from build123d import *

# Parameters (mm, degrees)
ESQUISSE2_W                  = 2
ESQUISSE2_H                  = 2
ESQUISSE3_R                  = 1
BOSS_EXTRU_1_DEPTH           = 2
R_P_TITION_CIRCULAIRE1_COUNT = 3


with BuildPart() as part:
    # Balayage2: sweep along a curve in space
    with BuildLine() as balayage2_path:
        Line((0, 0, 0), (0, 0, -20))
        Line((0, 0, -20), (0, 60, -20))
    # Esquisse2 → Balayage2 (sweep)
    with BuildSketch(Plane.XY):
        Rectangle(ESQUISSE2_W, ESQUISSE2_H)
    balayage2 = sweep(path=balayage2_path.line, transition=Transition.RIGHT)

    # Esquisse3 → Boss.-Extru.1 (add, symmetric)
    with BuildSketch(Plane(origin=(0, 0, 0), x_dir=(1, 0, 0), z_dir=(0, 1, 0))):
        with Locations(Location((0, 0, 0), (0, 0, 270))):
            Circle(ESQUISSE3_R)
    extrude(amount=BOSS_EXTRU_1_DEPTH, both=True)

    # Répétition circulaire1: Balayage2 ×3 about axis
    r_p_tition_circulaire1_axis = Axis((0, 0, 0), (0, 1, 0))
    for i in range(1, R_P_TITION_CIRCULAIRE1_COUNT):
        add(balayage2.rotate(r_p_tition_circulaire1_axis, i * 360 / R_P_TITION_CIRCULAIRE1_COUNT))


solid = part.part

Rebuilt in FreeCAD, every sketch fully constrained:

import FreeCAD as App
import Part
import Sketcher
from FreeCAD import Vector
Q = App.Units.Quantity


def add_polygon(sketch, points):
    """Adds a closed chain of lines whose ends are joined by coincident constraints."""
    first, n = sketch.GeometryCount, len(points)
    for a, b in zip(points, points[1:] + points[:1]):
        sketch.addGeometry(Part.LineSegment(App.Vector(*a, 0), App.Vector(*b, 0)), False)
    for i in range(n):
        sketch.addConstraint(Sketcher.Constraint("Coincident", first + i, 2, first + (i + 1) % n, 1))

doc = App.newDocument("Part")
params = doc.addObject("Spreadsheet::Sheet", "Params")
for row, (alias, value) in enumerate([
    ("sketch1_width", "2 mm"),
    ("sketch2_width", "60 mm"),
    ("sketch2_height", "20 mm"),
    ("sketch3_diameter", "2 mm"),
    ("pad1_length", "4 mm"),
], start=1):
    params.set(f"A{row}", alias)
    params.set(f"B{row}", "=" + value)
    params.setAlias(f"B{row}", alias)

body = doc.addObject("PartDesign::Body", "Body")

sketch1 = body.newObject("Sketcher::SketchObject", "Sketch")
sketch1.AttachmentSupport = (doc.getObject("XY_Plane"), [""])
sketch1.MapMode = "FlatFace"
add_polygon(sketch1, [(-1, 1), (-1, -1), (1, -1), (1, 1)])
sketch1.addConstraint([
    Sketcher.Constraint("Vertical", 0),
    Sketcher.Constraint("Horizontal", 1),
    Sketcher.Constraint("Vertical", 2),
    Sketcher.Constraint("Horizontal", 3),
    Sketcher.Constraint("Symmetric", 0, 2, 2, 2, -1, 1),
    Sketcher.Constraint("Equal", 3, 0),
    Sketcher.Constraint("DistanceX", 1, 1, 1, 2, Q("2 mm")),
])
sketch1.setExpression("Constraints[10]", "Params.sketch1_width")

sketch2 = body.newObject("Sketcher::SketchObject", "Sketch001")
sketch2.AttachmentSupport = (doc.getObject("YZ_Plane"), [""])
sketch2.MapMode = "FlatFace"
sketch2.addGeometry([
    Part.LineSegment(Vector(0, 0, 0), Vector(0, -20, 0)),
    Part.LineSegment(Vector(0, -20, 0), Vector(60, -20, 0)),
], False)
sketch2.addConstraint([
    Sketcher.Constraint("Coincident", 0, 2, 1, 1),
    Sketcher.Constraint("Vertical", 0),
    Sketcher.Constraint("Horizontal", 1),
    Sketcher.Constraint("Coincident", 0, 1, -1, 1),
    Sketcher.Constraint("DistanceX", 1, 1, 1, 2, Q("60 mm")),
    Sketcher.Constraint("DistanceY", 0, 2, 0, 1, Q("20 mm")),
])
sketch2.setExpression("Constraints[4]", "Params.sketch2_width")
sketch2.setExpression("Constraints[5]", "Params.sketch2_height")
doc.recompute()

additivepipe = body.newObject("PartDesign::AdditivePipe", "AdditivePipe")
additivepipe.Profile = sketch1
additivepipe.Spine = (sketch2, ["Edge1", "Edge2"])
additivepipe.Transition = "Right corner"

sketch3 = body.newObject("Sketcher::SketchObject", "Sketch002")
sketch3.AttachmentSupport = (doc.getObject("XZ_Plane"), [""])
sketch3.MapMode = "FlatFace"
sketch3.addGeometry(Part.Circle(Vector(0, 0, 0), Vector(0, 0, 1), 1), False)
sketch3.addConstraint([
    Sketcher.Constraint("Coincident", 0, 3, -1, 1),
    Sketcher.Constraint("Diameter", 0, Q("2 mm")),
])
sketch3.setExpression("Constraints[1]", "Params.sketch3_diameter")
pad1 = body.newObject("PartDesign::Pad", "Pad")
pad1.Profile = sketch3
pad1.setExpression("Length", "Params.pad1_length")
pad1.Midplane = True
doc.recompute()

polarpattern = body.newObject("PartDesign::PolarPattern", "PolarPattern")
polarpattern.Originals = [additivepipe]
polarpattern.Axis = (doc.getObject("Y_Axis"), [""])
polarpattern.Angle = 360
polarpattern.Occurrences = 3
body.Tip = polarpattern

doc.recompute()
